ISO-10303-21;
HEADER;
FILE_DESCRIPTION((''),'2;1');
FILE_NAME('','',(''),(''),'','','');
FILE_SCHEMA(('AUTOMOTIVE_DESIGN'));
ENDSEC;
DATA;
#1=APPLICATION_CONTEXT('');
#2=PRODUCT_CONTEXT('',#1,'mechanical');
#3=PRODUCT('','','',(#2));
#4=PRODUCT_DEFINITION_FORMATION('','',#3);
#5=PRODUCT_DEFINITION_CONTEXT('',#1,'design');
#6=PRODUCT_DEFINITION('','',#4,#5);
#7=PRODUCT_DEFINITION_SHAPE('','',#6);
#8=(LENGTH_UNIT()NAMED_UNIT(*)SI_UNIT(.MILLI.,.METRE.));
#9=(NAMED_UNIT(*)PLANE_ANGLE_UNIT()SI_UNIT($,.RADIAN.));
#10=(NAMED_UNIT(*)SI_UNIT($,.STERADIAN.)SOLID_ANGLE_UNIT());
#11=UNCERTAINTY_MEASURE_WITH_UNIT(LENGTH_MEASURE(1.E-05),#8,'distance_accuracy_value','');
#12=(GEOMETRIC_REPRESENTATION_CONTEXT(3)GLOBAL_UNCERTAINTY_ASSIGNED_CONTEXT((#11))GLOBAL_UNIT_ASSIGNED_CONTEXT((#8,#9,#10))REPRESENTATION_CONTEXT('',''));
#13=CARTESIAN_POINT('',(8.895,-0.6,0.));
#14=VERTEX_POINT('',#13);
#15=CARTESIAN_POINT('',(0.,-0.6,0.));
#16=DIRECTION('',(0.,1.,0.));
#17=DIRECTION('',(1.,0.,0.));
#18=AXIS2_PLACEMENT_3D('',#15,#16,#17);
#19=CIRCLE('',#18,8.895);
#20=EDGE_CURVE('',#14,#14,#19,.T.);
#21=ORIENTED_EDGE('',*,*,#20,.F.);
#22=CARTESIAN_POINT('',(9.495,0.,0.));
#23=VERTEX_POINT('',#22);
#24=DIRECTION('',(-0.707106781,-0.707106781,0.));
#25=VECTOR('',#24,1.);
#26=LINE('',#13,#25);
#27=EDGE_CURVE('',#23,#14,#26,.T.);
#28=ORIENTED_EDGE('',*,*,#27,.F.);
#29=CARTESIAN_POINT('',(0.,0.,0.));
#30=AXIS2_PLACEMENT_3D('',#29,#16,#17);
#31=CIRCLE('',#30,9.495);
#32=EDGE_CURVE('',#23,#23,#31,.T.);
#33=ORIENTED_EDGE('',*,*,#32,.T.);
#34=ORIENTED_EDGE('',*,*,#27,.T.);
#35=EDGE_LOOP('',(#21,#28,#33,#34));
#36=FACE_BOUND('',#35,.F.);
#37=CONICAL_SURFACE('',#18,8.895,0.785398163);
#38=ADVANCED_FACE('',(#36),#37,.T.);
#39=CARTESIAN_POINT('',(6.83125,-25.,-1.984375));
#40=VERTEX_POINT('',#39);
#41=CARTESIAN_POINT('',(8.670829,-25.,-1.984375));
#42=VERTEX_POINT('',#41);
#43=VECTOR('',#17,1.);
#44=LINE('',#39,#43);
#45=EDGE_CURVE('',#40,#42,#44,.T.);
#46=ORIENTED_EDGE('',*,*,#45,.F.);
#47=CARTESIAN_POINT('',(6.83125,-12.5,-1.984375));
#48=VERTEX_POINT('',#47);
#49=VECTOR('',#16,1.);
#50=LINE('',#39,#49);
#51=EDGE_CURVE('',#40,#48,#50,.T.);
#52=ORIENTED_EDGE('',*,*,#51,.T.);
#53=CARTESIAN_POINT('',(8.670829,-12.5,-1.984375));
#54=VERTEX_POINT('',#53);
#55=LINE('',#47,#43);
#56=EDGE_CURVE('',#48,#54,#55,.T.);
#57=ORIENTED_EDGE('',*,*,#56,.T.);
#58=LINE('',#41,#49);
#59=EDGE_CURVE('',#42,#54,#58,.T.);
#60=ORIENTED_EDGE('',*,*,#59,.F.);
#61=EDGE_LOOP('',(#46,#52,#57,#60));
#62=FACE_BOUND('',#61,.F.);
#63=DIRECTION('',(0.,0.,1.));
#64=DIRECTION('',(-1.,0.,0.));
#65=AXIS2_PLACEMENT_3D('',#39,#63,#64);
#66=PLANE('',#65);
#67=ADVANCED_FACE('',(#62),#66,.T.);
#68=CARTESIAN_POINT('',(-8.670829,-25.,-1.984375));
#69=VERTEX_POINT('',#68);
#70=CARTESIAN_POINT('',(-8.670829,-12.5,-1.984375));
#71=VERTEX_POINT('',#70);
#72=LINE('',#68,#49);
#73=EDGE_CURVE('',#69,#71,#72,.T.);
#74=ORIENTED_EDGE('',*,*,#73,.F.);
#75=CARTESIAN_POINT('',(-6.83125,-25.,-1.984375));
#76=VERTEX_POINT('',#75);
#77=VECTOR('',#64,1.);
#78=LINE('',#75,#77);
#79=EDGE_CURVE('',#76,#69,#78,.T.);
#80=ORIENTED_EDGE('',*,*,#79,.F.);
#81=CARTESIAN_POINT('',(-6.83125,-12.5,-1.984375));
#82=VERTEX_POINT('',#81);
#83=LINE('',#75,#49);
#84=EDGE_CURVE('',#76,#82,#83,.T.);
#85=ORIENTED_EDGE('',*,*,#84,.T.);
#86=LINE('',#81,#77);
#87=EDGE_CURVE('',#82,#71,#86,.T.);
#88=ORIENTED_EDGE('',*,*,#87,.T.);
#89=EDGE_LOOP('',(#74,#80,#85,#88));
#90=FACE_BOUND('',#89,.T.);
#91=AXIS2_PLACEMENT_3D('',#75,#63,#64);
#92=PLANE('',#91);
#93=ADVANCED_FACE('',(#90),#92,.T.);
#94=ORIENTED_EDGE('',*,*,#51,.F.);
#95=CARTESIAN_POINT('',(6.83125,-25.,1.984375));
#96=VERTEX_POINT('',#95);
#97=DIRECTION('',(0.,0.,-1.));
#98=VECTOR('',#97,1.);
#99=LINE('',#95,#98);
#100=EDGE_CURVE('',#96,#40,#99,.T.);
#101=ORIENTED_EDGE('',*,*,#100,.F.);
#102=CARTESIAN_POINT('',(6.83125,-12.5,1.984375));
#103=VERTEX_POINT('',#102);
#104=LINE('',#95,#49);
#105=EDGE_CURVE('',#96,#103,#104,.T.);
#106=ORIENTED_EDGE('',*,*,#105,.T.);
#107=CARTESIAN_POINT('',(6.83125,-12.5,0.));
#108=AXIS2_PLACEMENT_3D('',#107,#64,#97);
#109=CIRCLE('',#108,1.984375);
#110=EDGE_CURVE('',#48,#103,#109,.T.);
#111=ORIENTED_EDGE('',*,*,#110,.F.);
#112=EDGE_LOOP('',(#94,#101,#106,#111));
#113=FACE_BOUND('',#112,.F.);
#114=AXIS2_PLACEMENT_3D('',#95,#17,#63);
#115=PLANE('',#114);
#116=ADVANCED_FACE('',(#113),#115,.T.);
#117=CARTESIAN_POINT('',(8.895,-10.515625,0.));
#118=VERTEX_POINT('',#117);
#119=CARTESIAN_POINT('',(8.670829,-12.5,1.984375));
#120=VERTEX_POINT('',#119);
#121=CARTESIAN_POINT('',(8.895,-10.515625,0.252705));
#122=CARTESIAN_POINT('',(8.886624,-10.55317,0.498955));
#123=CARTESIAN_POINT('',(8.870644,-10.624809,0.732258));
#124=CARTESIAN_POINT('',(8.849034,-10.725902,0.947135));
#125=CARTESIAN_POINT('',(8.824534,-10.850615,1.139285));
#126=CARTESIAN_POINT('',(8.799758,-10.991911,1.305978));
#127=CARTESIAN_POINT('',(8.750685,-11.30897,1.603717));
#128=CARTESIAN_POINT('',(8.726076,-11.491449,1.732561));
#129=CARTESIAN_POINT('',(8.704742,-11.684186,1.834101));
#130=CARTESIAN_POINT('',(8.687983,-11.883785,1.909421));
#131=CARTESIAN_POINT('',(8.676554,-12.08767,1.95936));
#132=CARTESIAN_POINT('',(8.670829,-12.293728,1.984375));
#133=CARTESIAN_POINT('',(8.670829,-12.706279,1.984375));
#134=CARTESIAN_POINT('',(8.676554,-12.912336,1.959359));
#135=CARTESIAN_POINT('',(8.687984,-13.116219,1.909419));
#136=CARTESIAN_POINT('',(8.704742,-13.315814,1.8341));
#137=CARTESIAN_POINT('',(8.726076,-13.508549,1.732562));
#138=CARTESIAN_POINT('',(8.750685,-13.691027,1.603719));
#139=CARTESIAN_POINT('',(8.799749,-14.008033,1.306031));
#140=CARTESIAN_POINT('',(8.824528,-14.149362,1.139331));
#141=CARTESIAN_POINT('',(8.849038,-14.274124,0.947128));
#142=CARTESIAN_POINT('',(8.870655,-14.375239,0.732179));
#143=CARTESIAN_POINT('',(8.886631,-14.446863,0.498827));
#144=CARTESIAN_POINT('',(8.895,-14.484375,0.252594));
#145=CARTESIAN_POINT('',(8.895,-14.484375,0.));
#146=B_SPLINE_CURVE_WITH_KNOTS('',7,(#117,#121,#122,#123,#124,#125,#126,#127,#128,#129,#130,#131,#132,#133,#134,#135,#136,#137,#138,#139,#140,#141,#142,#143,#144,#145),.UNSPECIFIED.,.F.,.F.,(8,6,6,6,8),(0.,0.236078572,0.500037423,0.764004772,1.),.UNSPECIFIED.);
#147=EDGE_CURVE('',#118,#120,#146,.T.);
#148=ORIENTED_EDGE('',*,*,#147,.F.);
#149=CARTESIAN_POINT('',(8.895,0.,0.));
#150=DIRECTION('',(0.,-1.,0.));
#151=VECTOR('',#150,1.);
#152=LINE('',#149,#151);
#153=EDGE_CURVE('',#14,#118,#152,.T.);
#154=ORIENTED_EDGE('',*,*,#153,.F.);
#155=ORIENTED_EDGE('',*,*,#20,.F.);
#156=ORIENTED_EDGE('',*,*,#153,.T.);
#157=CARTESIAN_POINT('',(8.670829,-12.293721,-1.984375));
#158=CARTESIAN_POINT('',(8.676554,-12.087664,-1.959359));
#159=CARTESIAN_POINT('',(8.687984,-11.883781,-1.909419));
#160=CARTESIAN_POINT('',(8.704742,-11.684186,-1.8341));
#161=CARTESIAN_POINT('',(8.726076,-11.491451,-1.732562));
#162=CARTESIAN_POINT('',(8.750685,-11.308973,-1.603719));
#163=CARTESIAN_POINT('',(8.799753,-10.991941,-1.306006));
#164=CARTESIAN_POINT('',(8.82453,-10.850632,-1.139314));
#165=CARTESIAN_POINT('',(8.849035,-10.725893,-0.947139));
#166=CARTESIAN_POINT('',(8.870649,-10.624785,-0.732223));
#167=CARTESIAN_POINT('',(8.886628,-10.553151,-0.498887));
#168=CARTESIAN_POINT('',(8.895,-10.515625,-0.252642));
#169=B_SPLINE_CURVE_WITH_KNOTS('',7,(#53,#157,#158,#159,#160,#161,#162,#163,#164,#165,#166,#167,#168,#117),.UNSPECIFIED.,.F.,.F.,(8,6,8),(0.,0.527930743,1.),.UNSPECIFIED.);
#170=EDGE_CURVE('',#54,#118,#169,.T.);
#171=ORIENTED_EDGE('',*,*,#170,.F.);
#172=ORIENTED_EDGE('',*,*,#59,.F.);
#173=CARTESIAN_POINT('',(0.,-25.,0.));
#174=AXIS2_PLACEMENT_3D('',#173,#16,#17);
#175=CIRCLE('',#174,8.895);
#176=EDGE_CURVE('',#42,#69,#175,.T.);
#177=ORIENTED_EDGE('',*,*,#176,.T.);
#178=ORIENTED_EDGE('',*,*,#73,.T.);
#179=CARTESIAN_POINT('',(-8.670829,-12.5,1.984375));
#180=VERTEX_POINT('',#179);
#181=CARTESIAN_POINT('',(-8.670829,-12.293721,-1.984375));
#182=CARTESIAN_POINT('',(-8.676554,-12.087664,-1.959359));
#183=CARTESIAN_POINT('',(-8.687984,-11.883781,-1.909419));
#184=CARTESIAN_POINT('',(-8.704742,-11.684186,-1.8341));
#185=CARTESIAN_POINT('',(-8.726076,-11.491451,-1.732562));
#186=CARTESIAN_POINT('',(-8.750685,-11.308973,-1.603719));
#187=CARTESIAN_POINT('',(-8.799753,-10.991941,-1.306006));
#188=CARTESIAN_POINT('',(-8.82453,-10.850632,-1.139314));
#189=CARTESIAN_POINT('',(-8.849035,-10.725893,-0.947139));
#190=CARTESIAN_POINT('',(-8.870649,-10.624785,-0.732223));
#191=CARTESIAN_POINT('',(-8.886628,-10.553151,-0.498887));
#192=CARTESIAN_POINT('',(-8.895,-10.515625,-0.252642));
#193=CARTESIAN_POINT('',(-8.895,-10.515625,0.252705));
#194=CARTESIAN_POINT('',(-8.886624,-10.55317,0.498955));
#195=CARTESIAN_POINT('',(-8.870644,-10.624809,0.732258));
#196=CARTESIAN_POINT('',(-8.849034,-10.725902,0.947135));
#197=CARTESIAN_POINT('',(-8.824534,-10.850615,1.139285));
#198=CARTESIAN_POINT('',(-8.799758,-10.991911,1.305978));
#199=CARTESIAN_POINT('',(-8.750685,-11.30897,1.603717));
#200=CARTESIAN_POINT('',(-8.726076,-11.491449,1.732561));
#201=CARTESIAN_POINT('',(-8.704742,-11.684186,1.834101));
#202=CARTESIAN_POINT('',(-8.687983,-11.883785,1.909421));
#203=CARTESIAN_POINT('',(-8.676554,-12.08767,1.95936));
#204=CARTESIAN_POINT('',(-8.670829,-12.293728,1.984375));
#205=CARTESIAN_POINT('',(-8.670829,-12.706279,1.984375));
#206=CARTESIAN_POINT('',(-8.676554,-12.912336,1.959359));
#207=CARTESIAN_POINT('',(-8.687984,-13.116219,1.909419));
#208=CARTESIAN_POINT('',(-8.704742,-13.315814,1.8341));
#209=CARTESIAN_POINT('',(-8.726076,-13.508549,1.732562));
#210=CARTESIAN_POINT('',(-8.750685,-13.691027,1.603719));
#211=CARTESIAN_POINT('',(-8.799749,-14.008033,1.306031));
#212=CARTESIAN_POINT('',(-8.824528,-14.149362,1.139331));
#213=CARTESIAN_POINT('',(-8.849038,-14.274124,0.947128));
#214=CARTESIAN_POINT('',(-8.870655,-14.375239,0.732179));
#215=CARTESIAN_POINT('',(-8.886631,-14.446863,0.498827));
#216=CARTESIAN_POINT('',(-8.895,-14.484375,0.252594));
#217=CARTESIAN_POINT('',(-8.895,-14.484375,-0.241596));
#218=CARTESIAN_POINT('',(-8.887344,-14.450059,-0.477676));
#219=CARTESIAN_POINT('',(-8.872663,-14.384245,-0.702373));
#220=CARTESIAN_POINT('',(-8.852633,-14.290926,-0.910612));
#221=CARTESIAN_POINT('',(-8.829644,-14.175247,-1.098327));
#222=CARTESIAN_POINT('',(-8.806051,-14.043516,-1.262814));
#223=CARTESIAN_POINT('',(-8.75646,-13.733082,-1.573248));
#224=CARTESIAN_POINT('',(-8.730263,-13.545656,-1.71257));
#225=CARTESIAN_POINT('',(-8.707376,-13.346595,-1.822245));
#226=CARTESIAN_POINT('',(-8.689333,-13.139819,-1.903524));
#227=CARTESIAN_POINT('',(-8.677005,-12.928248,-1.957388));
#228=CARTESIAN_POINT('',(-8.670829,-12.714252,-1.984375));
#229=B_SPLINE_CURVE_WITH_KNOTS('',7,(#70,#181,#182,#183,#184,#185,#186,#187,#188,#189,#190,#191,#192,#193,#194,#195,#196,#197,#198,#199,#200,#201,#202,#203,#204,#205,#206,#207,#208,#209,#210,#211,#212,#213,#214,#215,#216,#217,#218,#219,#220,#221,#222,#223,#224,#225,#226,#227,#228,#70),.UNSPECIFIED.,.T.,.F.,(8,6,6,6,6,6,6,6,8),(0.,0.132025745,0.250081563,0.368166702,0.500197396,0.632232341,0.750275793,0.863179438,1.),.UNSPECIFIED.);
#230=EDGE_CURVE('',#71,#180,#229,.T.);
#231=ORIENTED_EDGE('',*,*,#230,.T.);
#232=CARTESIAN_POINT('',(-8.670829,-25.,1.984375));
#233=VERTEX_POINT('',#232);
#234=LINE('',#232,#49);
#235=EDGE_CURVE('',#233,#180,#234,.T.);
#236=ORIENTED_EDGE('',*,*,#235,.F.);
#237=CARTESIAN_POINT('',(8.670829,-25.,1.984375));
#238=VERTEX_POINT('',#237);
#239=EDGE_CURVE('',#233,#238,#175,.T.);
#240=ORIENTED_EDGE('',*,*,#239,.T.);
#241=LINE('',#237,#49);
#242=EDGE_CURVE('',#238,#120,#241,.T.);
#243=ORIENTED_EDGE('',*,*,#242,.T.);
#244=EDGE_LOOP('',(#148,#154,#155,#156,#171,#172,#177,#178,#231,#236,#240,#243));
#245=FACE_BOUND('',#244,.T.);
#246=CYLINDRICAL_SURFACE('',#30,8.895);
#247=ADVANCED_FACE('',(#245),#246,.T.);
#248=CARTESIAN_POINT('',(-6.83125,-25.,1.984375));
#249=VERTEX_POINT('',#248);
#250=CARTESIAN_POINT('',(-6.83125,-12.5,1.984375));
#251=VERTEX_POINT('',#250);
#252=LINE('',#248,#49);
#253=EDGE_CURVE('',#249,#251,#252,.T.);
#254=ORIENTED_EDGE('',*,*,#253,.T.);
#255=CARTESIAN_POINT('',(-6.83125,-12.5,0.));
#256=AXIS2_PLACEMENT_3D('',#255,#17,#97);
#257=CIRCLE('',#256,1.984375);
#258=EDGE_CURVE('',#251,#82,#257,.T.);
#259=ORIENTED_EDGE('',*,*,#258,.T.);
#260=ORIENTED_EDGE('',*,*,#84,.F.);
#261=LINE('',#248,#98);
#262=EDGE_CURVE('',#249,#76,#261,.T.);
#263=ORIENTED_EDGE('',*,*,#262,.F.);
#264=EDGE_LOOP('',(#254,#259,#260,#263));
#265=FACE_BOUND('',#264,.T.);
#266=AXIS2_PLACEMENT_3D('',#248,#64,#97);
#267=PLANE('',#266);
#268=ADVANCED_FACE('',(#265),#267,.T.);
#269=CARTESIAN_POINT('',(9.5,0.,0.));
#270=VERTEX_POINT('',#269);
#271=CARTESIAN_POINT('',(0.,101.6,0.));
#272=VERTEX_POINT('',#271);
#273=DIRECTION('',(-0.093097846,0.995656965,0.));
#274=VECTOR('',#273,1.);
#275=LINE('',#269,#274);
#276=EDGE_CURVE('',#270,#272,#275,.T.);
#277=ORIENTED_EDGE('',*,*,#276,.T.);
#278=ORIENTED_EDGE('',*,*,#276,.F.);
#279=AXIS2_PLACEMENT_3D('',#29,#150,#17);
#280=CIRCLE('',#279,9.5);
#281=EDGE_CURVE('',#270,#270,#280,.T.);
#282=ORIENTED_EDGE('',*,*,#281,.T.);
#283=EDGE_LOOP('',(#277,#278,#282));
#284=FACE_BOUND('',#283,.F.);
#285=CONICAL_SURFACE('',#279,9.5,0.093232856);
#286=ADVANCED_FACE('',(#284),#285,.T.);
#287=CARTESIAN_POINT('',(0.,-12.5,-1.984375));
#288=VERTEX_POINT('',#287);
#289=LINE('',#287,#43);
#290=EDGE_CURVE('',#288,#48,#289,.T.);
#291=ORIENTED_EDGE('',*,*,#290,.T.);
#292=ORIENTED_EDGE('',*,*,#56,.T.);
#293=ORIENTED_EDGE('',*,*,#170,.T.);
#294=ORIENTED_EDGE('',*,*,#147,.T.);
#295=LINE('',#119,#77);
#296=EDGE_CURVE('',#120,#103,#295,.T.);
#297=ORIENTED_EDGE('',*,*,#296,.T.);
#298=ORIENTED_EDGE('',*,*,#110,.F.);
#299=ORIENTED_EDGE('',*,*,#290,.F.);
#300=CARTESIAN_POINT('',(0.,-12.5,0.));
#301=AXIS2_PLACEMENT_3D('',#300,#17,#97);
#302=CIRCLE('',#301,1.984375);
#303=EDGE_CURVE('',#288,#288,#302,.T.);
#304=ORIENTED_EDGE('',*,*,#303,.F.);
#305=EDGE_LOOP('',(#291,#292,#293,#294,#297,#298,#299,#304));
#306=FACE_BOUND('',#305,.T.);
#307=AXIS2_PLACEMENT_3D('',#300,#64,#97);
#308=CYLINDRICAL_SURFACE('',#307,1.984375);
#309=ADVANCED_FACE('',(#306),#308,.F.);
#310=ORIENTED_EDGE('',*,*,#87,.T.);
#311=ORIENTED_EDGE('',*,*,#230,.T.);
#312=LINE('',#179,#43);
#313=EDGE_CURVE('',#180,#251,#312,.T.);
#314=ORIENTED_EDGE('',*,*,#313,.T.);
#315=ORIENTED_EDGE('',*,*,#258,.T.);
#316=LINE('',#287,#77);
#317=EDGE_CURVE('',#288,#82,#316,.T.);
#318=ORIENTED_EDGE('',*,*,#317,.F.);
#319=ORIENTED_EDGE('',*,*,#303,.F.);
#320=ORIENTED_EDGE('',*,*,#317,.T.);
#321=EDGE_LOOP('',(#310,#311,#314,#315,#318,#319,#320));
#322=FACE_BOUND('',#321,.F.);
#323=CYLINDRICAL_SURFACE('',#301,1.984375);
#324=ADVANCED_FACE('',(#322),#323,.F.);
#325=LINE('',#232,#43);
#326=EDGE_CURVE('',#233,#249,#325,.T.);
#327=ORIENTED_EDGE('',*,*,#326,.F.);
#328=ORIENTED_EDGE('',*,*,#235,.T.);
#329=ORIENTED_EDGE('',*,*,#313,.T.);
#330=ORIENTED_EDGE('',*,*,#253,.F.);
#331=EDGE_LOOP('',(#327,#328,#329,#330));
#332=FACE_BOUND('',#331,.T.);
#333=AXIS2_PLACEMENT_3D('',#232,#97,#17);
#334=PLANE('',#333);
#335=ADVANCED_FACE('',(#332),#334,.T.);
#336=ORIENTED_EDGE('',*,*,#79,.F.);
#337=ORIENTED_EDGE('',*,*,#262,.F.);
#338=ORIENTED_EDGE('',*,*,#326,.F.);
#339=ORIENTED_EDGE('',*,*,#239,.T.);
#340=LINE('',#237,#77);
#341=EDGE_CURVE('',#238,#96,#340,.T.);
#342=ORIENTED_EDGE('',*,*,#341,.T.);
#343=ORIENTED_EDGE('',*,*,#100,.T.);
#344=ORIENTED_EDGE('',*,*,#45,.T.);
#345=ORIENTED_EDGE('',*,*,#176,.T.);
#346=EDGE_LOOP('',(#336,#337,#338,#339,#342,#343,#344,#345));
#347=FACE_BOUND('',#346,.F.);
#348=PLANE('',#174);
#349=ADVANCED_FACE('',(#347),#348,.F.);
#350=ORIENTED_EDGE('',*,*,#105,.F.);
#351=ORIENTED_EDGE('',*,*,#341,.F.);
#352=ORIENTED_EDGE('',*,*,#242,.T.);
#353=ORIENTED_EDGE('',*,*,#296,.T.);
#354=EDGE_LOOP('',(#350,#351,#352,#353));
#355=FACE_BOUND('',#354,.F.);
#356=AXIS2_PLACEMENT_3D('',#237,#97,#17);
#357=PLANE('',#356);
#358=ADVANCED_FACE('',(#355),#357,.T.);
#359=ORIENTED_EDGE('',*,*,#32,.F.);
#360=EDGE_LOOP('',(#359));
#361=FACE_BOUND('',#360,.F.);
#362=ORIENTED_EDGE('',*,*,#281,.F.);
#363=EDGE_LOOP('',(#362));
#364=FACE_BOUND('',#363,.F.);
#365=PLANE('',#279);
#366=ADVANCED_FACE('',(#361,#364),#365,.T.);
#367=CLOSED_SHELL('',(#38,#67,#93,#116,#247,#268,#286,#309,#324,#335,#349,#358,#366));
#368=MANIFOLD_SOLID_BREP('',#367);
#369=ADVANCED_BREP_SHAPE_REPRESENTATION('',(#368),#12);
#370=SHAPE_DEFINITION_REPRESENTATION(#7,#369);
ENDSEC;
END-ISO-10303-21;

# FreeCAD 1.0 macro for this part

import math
import FreeCAD as App
import Part
import Sketcher
from FreeCAD import Vector


def edges_at(feature, points):
    """Names of the edges that pass closest to the given points."""
    edges = feature.Shape.Edges
    near = lambda p: min(range(len(edges)), key=lambda i: edges[i].distToShape(Part.Vertex(*p))[0])
    return sorted({f"Edge{near(p) + 1}" for p in points})

doc = App.newDocument("Part")
params = doc.addObject("Spreadsheet::Sheet", "Params")
for row, (alias, value) in enumerate([
    ("sketch1_diameter", "17.79 mm"),
    ("pad1_length", "25 mm"),
    ("pocket1_length", "12.5 mm"),
    ("sketch4_width", "9.5 mm"),
    ("sketch4_height", "101.6 mm"),
    ("revolution_angle", "360 deg"),
    ("chamfer_size", "0.6 mm"),
], start=1):
    params.set(f"A{row}", alias)
    params.set(f"B{row}", "=" + value)
    params.setAlias(f"B{row}", alias)

body = doc.addObject("PartDesign::Body", "Body")

# Sketch on XZ plane
sketch1 = body.newObject("Sketcher::SketchObject", "Sketch")
sketch1.AttachmentSupport = (doc.getObject("XZ_Plane"), [""])
sketch1.MapMode = "FlatFace"
sketch1.addGeometry(Part.Circle(Vector(0, 0, 0), Vector(0, 0, 1), 9), False)
sketch1.addConstraint([
    Sketcher.Constraint("Coincident", 0, 3, -1, 1),
    Sketcher.Constraint("Diameter", 0, 17.79),
])
sketch1.setExpression("Constraints[1]", "Params.sketch1_diameter")
pad1 = body.newObject("PartDesign::Pad", "Pad")
pad1.Profile = sketch1
pad1.setExpression("Length", "Params.pad1_length")

# Sketch on XZ plane
sketch2 = body.newObject("Sketcher::SketchObject", "Sketch001")
sketch2.AttachmentSupport = (doc.getObject("XZ_Plane"), [""])
sketch2.MapMode = "FlatFace"
sketch2.AttachmentOffset = App.Placement(Vector(0, 0, 25), App.Rotation())
sketch2.addGeometry([
    Part.LineSegment(Vector(-6.8, -2, 0), Vector(-6.8, 2, 0)),
    Part.LineSegment(Vector(-6.8, 2, 0), Vector(-8.7, 2, 0)),
    Part.ArcOfCircle(Part.Circle(Vector(0, 0, 0), Vector(0, 0, 1), 8.9), math.radians(167), math.radians(193)),
    Part.LineSegment(Vector(-8.7, -2, 0), Vector(-6.8, -2, 0)),
], False)
sketch2.addConstraint([
    Sketcher.Constraint("Coincident", 0, 2, 1, 1),
    Sketcher.Constraint("Coincident", 1, 2, 2, 1),
    Sketcher.Constraint("Coincident", 2, 2, 3, 1),
    Sketcher.Constraint("Coincident", 3, 2, 0, 1),
    Sketcher.Constraint("Vertical", 0),
    Sketcher.Constraint("Horizontal", 1),
    Sketcher.Constraint("Horizontal", 3),
    Sketcher.Constraint("Coincident", 2, 3, -1, 1),
    Sketcher.Constraint("Vertical", 1, 2, 2, 2),
    Sketcher.Constraint("Radius", 2, 8.895),
    Sketcher.Constraint("DistanceX", 1, 2, 1, 1, 1.839579),
    Sketcher.Constraint("DistanceY", 0, 1, 0, 2, 3.96875),
])
pocket1 = body.newObject("PartDesign::Pocket", "Pocket")
pocket1.Profile = sketch2
pocket1.setExpression("Length", "Params.pocket1_length")
doc.recompute()

mirrored = body.newObject("PartDesign::Mirrored", "Mirrored")
mirrored.Originals = [pocket1]
mirrored.MirrorPlane = (doc.getObject("YZ_Plane"), [""])
body.Tip = mirrored

# Sketch on YZ plane
sketch3 = body.newObject("Sketcher::SketchObject", "Sketch002")
sketch3.AttachmentSupport = (doc.getObject("YZ_Plane"), [""])
sketch3.MapMode = "FlatFace"
sketch3.addGeometry(Part.Circle(Vector(-12.5, 0, 0), Vector(0, 0, 1), 2), False)
sketch3.addConstraint([
    Sketcher.Constraint("PointOnObject", 0, 3, -1),
    Sketcher.Constraint("DistanceX", 0, 3, -1, 1, 12.5),
    Sketcher.Constraint("Diameter", 0, 3.96875),
])
pocket2 = body.newObject("PartDesign::Pocket", "Pocket001")
pocket2.Profile = sketch3
pocket2.Type = "ThroughAll"
pocket2.Midplane = True

# Sketch on XY plane
sketch4 = body.newObject("Sketcher::SketchObject", "Sketch003")
sketch4.AttachmentSupport = (doc.getObject("XY_Plane"), [""])
sketch4.MapMode = "FlatFace"
sketch4.addGeometry([
    Part.LineSegment(Vector(0, 0, 0), Vector(10, 0, 0)),
    Part.LineSegment(Vector(10, 0, 0), Vector(0, 102, 0)),
    Part.LineSegment(Vector(0, 102, 0), Vector(0, 0, 0)),
], False)
sketch4.addConstraint([
    Sketcher.Constraint("Coincident", 0, 2, 1, 1),
    Sketcher.Constraint("Coincident", 1, 2, 2, 1),
    Sketcher.Constraint("Coincident", 2, 2, 0, 1),
    Sketcher.Constraint("Horizontal", 0),
    Sketcher.Constraint("Vertical", 2),
    Sketcher.Constraint("Coincident", 2, 2, -1, 1),
    Sketcher.Constraint("DistanceX", 0, 1, 0, 2, 9.5),
    Sketcher.Constraint("DistanceY", 2, 2, 2, 1, 101.6),
])
sketch4.setExpression("Constraints[6]", "Params.sketch4_width")
sketch4.setExpression("Constraints[7]", "Params.sketch4_height")
revolution = body.newObject("PartDesign::Revolution", "Revolution")
revolution.Profile = sketch4
revolution.ReferenceAxis = (sketch4, ["V_Axis"])
revolution.setExpression("Angle", "Params.revolution_angle")
doc.recompute()

chamfer = body.newObject("PartDesign::Chamfer", "Chamfer")
chamfer.Base = (revolution, edges_at(revolution, [(-8.895, 0, 0)]))
chamfer.setExpression("Size", "Params.chamfer_size")

doc.recompute()
